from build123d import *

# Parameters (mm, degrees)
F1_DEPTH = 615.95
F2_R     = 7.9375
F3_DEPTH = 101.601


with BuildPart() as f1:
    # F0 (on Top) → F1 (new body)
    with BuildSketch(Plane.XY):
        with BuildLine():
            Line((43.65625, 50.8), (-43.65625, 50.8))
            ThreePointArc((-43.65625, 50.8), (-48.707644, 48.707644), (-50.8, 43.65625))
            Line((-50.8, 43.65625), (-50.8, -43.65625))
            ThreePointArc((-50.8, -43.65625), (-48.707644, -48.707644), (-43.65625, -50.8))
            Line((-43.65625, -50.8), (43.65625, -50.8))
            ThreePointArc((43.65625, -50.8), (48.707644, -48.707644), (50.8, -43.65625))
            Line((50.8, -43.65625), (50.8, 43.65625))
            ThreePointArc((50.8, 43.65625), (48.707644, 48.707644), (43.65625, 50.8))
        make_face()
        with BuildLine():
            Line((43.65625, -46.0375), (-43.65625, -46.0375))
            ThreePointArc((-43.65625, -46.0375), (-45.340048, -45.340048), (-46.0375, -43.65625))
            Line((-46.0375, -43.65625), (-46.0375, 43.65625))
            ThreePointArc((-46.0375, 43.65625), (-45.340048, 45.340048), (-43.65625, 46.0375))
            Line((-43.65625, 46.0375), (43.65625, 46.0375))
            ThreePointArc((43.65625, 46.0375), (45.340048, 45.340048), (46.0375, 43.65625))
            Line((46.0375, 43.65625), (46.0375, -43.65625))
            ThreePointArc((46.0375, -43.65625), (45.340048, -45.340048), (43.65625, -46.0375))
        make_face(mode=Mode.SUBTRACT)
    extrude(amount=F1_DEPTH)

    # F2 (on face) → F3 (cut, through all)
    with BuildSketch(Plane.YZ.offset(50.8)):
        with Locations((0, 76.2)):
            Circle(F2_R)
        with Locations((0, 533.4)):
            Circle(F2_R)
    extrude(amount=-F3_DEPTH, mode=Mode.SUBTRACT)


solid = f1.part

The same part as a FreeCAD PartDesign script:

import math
import FreeCAD as App
import Part
import Sketcher
Q = App.Units.Quantity

doc = App.newDocument("Part")
body = doc.addObject("PartDesign::Body", "Body")

sketch1 = body.newObject("Sketcher::SketchObject", "Sketch")
sketch1.AttachmentSupport = (doc.getObject("XY_Plane"), [""])
sketch1.MapMode = "FlatFace"
sketch1.addGeometry(Part.LineSegment(App.Vector(43.65625, 50.8, 0), App.Vector(-43.65625, 50.8, 0)), False)
sketch1.addGeometry(Part.ArcOfCircle(Part.Circle(App.Vector(-43.65625, 43.65625, 0), App.Vector(0, 0, 1), 7.14375), math.radians(90.000002), math.radians(179.999998)), False)
sketch1.addGeometry(Part.LineSegment(App.Vector(-50.8, 43.65625, 0), App.Vector(-50.8, -43.65625, 0)), False)
sketch1.addGeometry(Part.ArcOfCircle(Part.Circle(App.Vector(-43.65625, -43.65625, 0), App.Vector(0, 0, 1), 7.14375), math.radians(-179.999998), math.radians(-90.000002)), False)
sketch1.addGeometry(Part.LineSegment(App.Vector(-43.65625, -50.8, 0), App.Vector(43.65625, -50.8, 0)), False)
sketch1.addGeometry(Part.ArcOfCircle(Part.Circle(App.Vector(43.65625, -43.65625, 0), App.Vector(0, 0, 1), 7.14375), math.radians(-89.999998), math.radians(-0.000002)), False)
sketch1.addGeometry(Part.LineSegment(App.Vector(50.8, -43.65625, 0), App.Vector(50.8, 43.65625, 0)), False)
sketch1.addGeometry(Part.ArcOfCircle(Part.Circle(App.Vector(43.65625, 43.65625, 0), App.Vector(0, 0, 1), 7.14375), math.radians(0.000002), math.radians(89.999998)), False)
sketch1.addGeometry(Part.ArcOfCircle(Part.Circle(App.Vector(43.65625, -43.65625, 0), App.Vector(0, 0, 1), 2.38125), math.radians(-89.999998), math.radians(-0.000002)), False)
sketch1.addGeometry(Part.LineSegment(App.Vector(43.65625, -46.0375, 0), App.Vector(-43.65625, -46.0375, 0)), False)
sketch1.addGeometry(Part.ArcOfCircle(Part.Circle(App.Vector(-43.65625, -43.65625, 0), App.Vector(0, 0, 1), 2.38125), math.radians(-179.999998), math.radians(-90.000002)), False)
sketch1.addGeometry(Part.LineSegment(App.Vector(-46.0375, -43.65625, 0), App.Vector(-46.0375, 43.65625, 0)), False)
sketch1.addGeometry(Part.ArcOfCircle(Part.Circle(App.Vector(-43.65625, 43.65625, 0), App.Vector(0, 0, 1), 2.38125), math.radians(90.000002), math.radians(179.999998)), False)
sketch1.addGeometry(Part.LineSegment(App.Vector(-43.65625, 46.0375, 0), App.Vector(43.65625, 46.0375, 0)), False)
sketch1.addGeometry(Part.ArcOfCircle(Part.Circle(App.Vector(43.65625, 43.65625, 0), App.Vector(0, 0, 1), 2.38125), math.radians(0.000002), math.radians(89.999998)), False)
sketch1.addGeometry(Part.LineSegment(App.Vector(46.0375, 43.65625, 0), App.Vector(46.0375, -43.65625, 0)), False)
sketch1.addConstraint(Sketcher.Constraint("Tangent", 0, 2, 1, 1))
sketch1.addConstraint(Sketcher.Constraint("Tangent", 1, 2, 2, 1))
sketch1.addConstraint(Sketcher.Constraint("Tangent", 2, 2, 3, 1))
sketch1.addConstraint(Sketcher.Constraint("Tangent", 3, 2, 4, 1))
sketch1.addConstraint(Sketcher.Constraint("Tangent", 4, 2, 5, 1))
sketch1.addConstraint(Sketcher.Constraint("Tangent", 5, 2, 6, 1))
sketch1.addConstraint(Sketcher.Constraint("Tangent", 6, 2, 7, 1))
sketch1.addConstraint(Sketcher.Constraint("Tangent", 7, 2, 0, 1))
sketch1.addConstraint(Sketcher.Constraint("Tangent", 8, 1, 9, 1))
sketch1.addConstraint(Sketcher.Constraint("Tangent", 9, 2, 10, 2))
sketch1.addConstraint(Sketcher.Constraint("Tangent", 10, 1, 11, 1))
sketch1.addConstraint(Sketcher.Constraint("Tangent", 11, 2, 12, 2))
sketch1.addConstraint(Sketcher.Constraint("Tangent", 12, 1, 13, 1))
sketch1.addConstraint(Sketcher.Constraint("Tangent", 13, 2, 14, 2))
sketch1.addConstraint(Sketcher.Constraint("Tangent", 14, 1, 15, 1))
sketch1.addConstraint(Sketcher.Constraint("Tangent", 15, 2, 8, 2))
sketch1.addConstraint(Sketcher.Constraint("Horizontal", 0))
sketch1.addConstraint(Sketcher.Constraint("Vertical", 2))
sketch1.addConstraint(Sketcher.Constraint("Horizontal", 4))
sketch1.addConstraint(Sketcher.Constraint("Vertical", 6))
sketch1.addConstraint(Sketcher.Constraint("Horizontal", 9))
sketch1.addConstraint(Sketcher.Constraint("Vertical", 11))
sketch1.addConstraint(Sketcher.Constraint("Horizontal", 13))
sketch1.addConstraint(Sketcher.Constraint("Vertical", 15))
sketch1.addConstraint(Sketcher.Constraint("Coincident", 8, 3, 5, 3))
sketch1.addConstraint(Sketcher.Constraint("Coincident", 10, 3, 3, 3))
sketch1.addConstraint(Sketcher.Constraint("Coincident", 12, 3, 1, 3))
sketch1.addConstraint(Sketcher.Constraint("Equal", 1, 3))
sketch1.addConstraint(Sketcher.Constraint("Equal", 3, 5))
sketch1.addConstraint(Sketcher.Constraint("Equal", 5, 7))
sketch1.addConstraint(Sketcher.Constraint("Equal", 12, 14))
sketch1.addConstraint(Sketcher.Constraint("Symmetric", 1, 3, 5, 3, -1, 1))
sketch1.addConstraint(Sketcher.Constraint("Equal", 13, 2))
sketch1.addConstraint(Sketcher.Constraint("DistanceY", -1, 1, 0, 2, Q("2 in")))
sketch1.addConstraint(Sketcher.Constraint("Radius", 1, Q("0.28125 in")))
sketch1.addConstraint(Sketcher.Constraint("Radius", 8, Q("0.09375 in")))
pad1 = body.newObject("PartDesign::Pad", "Pad")
pad1.Profile = sketch1
pad1.Length = Q("24.25 in")

sketch2 = body.newObject("Sketcher::SketchObject", "Sketch001")
sketch2.AttachmentSupport = (doc.getObject("YZ_Plane"), [""])
sketch2.MapMode = "FlatFace"
sketch2.AttachmentOffset = App.Placement(App.Vector(0, 0, 2 * 25.4), App.Rotation())
sketch2.addGeometry(Part.Circle(App.Vector(0, 76.2, 0), App.Vector(0, 0, 1), 7.9375), False)
sketch2.addGeometry(Part.Circle(App.Vector(0, 533.4, 0), App.Vector(0, 0, 1), 7.9375), False)
sketch2.addConstraint(Sketcher.Constraint("Equal", 0, 1))
sketch2.addConstraint(Sketcher.Constraint("PointOnObject", 0, 3, -2))
sketch2.addConstraint(Sketcher.Constraint("PointOnObject", 1, 3, -2))
sketch2.addConstraint(Sketcher.Constraint("Diameter", 0, Q("0.625 in")))
sketch2.addConstraint(Sketcher.Constraint("DistanceY", -1, 1, 0, 3, Q("3 in")))
sketch2.addConstraint(Sketcher.Constraint("DistanceY", -1, 1, 1, 3, Q("21 in")))
pocket1 = body.newObject("PartDesign::Pocket", "Pocket")
pocket1.Profile = sketch2
pocket1.Type = "ThroughAll"

doc.recompute()
